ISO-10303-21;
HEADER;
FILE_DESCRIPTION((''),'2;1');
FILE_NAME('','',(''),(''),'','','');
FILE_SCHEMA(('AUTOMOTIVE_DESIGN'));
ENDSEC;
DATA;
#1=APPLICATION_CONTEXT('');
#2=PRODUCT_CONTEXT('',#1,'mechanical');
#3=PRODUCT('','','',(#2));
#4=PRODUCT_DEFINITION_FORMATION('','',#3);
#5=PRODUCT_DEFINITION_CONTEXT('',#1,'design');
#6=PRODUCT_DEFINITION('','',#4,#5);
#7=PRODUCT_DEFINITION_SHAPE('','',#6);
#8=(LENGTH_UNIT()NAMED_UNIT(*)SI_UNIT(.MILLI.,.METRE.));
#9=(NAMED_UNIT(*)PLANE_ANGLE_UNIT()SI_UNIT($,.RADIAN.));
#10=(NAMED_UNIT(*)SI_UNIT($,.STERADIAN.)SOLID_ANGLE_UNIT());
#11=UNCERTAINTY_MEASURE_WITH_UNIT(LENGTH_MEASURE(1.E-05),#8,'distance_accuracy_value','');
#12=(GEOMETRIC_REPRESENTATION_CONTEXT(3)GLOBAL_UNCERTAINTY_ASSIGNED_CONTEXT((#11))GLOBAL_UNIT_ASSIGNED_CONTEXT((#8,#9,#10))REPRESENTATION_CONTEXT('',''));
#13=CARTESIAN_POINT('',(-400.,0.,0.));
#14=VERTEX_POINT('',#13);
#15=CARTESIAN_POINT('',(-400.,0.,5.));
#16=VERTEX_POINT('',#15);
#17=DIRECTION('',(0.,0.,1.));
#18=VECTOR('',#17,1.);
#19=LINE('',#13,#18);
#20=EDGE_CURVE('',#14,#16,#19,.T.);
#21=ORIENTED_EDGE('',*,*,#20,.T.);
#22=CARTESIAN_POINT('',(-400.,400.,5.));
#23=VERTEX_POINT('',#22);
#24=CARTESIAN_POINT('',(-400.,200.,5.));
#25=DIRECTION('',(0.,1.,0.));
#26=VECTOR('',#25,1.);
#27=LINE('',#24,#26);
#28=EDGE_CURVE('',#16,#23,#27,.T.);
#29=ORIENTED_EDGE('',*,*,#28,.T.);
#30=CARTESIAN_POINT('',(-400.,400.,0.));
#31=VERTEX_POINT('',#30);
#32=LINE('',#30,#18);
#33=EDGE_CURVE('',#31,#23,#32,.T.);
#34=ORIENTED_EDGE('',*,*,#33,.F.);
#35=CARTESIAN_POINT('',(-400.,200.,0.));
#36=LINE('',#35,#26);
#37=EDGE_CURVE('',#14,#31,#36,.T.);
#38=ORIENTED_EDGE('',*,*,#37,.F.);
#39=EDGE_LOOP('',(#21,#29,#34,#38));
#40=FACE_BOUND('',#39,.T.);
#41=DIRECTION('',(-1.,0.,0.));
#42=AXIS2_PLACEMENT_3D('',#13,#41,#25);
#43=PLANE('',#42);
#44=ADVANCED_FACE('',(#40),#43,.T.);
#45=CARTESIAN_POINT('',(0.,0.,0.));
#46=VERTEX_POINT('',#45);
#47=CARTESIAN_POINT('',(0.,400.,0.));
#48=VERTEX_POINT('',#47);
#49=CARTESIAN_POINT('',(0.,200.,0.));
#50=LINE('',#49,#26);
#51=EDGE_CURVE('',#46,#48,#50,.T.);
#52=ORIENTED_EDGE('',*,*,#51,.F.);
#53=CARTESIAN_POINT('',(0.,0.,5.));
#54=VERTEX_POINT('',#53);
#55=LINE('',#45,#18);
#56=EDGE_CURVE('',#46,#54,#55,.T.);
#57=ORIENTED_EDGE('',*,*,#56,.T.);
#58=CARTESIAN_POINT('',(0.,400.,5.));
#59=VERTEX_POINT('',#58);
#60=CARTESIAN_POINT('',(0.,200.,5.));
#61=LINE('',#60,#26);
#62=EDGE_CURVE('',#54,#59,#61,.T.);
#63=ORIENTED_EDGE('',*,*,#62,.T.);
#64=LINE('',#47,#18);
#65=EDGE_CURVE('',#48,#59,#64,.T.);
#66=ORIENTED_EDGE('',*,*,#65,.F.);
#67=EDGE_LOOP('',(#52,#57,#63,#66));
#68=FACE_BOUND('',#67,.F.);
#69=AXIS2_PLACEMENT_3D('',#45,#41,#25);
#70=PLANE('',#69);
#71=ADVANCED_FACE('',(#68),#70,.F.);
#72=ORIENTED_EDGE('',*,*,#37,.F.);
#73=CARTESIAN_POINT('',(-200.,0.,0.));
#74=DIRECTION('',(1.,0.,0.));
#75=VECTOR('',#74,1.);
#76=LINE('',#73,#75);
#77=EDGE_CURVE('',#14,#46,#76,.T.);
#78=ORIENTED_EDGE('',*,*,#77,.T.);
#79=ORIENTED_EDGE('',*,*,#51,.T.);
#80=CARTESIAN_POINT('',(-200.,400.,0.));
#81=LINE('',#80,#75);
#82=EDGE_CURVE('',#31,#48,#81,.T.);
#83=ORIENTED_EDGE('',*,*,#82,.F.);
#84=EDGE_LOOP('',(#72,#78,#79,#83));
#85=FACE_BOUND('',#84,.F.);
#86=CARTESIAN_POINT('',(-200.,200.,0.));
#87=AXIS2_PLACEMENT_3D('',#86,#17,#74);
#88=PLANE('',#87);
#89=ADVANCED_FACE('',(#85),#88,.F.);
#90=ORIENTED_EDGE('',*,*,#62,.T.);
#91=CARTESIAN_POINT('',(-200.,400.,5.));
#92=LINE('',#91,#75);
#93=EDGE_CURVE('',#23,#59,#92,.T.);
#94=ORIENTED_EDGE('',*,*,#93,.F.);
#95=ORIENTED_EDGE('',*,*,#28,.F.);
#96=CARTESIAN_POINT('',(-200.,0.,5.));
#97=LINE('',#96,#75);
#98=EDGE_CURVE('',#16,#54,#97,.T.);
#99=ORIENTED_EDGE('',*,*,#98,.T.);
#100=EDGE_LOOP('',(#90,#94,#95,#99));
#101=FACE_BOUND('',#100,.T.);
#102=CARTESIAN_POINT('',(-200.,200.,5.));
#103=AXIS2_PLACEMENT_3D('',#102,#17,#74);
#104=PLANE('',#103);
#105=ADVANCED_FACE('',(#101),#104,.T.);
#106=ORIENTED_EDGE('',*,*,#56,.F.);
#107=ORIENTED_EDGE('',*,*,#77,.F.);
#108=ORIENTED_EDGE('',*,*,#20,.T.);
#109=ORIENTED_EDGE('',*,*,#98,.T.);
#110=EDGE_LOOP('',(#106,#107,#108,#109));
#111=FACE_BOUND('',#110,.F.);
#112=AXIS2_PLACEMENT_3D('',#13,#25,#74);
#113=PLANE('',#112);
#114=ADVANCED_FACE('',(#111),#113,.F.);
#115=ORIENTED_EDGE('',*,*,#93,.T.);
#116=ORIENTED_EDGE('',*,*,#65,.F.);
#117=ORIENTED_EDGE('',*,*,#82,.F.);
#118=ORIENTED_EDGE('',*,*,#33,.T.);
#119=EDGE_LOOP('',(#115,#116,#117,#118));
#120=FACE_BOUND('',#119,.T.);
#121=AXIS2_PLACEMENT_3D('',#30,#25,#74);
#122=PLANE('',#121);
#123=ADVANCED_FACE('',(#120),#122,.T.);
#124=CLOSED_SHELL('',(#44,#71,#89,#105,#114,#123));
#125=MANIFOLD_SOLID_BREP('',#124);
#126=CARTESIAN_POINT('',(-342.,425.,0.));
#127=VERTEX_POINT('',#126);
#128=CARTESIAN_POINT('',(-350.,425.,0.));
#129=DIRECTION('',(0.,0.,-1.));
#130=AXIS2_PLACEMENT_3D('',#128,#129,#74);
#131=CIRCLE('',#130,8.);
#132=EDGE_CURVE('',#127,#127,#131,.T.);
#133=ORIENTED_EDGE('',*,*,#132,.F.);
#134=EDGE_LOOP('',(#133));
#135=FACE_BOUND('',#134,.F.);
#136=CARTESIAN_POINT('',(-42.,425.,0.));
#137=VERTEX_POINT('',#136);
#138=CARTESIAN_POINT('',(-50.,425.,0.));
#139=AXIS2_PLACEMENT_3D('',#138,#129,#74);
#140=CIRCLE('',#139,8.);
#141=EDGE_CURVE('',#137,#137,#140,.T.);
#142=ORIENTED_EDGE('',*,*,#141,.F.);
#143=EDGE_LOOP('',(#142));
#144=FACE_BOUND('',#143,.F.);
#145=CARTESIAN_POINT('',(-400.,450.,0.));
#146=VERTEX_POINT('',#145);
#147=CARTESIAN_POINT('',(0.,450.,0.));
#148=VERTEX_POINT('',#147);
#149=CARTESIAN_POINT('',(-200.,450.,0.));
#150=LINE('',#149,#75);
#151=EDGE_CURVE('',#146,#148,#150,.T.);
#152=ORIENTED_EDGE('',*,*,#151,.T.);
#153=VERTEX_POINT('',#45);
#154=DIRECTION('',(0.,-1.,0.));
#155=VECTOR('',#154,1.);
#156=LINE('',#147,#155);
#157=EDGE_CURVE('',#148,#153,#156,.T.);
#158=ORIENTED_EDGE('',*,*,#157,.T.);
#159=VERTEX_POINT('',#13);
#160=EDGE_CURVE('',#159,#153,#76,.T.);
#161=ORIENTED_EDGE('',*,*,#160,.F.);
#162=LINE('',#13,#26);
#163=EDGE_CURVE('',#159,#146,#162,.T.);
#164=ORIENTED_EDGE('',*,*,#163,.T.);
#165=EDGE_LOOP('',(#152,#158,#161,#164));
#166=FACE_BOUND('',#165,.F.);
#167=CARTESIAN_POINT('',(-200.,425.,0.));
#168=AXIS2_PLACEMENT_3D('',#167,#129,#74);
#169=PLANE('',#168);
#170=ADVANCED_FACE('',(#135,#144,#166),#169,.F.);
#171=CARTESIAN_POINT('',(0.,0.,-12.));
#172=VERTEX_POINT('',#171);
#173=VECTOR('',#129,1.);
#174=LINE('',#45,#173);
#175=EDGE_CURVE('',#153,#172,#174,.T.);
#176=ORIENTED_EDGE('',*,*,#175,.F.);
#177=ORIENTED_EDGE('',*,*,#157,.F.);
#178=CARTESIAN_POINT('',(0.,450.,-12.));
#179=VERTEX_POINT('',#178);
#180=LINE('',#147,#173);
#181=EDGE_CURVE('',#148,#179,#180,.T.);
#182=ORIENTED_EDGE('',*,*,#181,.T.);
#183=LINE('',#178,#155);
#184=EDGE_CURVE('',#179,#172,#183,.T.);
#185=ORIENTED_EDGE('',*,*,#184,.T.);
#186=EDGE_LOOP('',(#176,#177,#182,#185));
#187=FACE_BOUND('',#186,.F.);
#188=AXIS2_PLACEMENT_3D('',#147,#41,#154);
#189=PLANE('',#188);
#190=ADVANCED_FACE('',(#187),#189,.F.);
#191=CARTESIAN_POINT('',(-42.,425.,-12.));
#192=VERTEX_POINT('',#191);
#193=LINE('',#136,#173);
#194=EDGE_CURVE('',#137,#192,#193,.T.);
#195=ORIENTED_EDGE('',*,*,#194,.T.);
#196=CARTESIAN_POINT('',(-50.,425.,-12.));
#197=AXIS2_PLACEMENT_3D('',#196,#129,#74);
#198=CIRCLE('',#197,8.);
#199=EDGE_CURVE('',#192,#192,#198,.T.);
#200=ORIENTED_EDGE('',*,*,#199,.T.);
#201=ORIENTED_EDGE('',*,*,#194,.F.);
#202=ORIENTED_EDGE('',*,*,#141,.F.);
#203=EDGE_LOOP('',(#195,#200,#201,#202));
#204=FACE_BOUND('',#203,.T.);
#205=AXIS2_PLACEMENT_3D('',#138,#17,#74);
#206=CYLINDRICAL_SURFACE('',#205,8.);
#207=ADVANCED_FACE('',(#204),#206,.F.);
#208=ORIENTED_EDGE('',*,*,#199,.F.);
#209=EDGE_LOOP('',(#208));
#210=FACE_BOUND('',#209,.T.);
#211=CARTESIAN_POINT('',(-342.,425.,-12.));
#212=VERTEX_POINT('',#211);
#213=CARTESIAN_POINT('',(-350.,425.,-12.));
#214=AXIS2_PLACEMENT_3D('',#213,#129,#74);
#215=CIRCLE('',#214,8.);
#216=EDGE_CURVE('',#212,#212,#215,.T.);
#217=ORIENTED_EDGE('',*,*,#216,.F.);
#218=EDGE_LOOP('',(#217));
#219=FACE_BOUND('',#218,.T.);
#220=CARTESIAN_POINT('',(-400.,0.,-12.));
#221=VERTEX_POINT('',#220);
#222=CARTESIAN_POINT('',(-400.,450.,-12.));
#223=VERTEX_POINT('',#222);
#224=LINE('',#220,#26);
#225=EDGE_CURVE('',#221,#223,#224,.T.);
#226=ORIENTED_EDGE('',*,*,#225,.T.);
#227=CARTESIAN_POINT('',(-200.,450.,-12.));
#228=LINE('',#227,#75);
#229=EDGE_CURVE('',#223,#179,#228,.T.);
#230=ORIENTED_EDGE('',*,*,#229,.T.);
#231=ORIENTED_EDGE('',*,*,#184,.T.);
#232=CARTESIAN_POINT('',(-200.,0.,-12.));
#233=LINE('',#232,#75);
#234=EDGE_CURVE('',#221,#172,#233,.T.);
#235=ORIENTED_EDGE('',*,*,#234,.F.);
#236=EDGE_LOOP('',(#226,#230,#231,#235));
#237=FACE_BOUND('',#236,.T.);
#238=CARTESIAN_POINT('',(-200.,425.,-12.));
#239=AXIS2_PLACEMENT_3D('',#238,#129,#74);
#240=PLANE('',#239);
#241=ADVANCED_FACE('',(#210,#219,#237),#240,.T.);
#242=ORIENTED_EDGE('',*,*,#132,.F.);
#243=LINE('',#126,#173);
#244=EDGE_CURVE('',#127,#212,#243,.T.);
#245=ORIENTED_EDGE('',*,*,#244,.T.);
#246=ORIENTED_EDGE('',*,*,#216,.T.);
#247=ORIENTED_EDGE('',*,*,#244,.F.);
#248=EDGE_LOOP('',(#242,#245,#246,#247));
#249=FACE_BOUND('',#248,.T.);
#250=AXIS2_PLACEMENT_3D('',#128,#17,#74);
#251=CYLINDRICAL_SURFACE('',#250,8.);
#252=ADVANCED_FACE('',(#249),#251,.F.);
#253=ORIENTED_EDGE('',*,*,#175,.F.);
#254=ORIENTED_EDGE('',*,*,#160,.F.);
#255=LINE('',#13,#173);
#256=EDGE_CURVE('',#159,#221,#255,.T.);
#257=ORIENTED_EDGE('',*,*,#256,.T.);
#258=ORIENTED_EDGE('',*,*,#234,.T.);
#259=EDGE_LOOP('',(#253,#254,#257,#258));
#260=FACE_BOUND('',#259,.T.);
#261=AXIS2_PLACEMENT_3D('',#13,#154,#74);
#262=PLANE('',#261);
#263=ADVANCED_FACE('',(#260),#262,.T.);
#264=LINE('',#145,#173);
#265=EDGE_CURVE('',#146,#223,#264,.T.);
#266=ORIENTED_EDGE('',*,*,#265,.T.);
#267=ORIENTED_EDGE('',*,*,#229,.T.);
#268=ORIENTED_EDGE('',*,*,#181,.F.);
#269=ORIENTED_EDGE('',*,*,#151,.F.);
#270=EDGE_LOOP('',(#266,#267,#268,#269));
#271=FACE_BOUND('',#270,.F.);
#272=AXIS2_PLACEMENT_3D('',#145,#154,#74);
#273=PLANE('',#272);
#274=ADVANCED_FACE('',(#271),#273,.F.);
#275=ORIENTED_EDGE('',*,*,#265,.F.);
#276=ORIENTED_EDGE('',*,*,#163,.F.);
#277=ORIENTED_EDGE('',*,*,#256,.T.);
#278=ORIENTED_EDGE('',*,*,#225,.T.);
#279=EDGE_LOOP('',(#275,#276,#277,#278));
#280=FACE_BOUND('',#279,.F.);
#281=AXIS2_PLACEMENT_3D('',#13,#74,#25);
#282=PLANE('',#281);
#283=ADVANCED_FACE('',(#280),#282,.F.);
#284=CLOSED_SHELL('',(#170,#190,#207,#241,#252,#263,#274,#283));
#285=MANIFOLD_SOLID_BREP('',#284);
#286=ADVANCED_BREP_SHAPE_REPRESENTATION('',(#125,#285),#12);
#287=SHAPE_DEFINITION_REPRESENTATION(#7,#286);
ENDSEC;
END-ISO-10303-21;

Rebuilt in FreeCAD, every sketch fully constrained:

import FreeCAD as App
import Part
import Sketcher
from FreeCAD import Vector


def add_polygon(sketch, points):
    """Adds a closed chain of lines whose ends are joined by coincident constraints."""
    first, n = sketch.GeometryCount, len(points)
    for a, b in zip(points, points[1:] + points[:1]):
        sketch.addGeometry(Part.LineSegment(App.Vector(*a, 0), App.Vector(*b, 0)), False)
    for i in range(n):
        sketch.addConstraint(Sketcher.Constraint("Coincident", first + i, 2, first + (i + 1) % n, 1))

doc = App.newDocument("Part")
body = doc.addObject("PartDesign::Body", "Body")

# Sketch on XY plane
sketch1 = body.newObject("Sketcher::SketchObject", "Sketch")
sketch1.AttachmentSupport = (doc.getObject("XY_Plane"), [""])
sketch1.MapMode = "FlatFace"
add_polygon(sketch1, [(-400, 400), (-400, 0), (0, 0), (0, 400)])  # lines 0-3
sketch1.addConstraint([
    Sketcher.Constraint("Vertical", 0),
    Sketcher.Constraint("Horizontal", 1),
    Sketcher.Constraint("Vertical", 2),
    Sketcher.Constraint("Horizontal", 3),
    Sketcher.Constraint("Coincident", 1, 2, -1, 1),
    Sketcher.Constraint("Equal", 3, 0),
    Sketcher.Constraint("DistanceX", 1, 1, 1, 2, 400.0),
])
pad1 = body.newObject("PartDesign::Pad", "Pad")
pad1.Profile = sketch1
pad1.Length = 5
body2 = doc.addObject("PartDesign::Body", "Body001")

# Sketch on XY plane
sketch2 = body2.newObject("Sketcher::SketchObject", "Sketch001")
sketch2.AttachmentSupport = (doc.getObject("XY_Plane001"), [""])
sketch2.MapMode = "FlatFace"
add_polygon(sketch2, [(-400, 450), (0, 450), (0, 0), (-400, 0)])  # lines 0-3
sketch2.addGeometry(Part.Circle(Vector(-350, 425, 0), Vector(0, 0, 1), 8), False)  # 4
sketch2.addGeometry(Part.Circle(Vector(-50, 425, 0), Vector(0, 0, 1), 8), False)  # 5
sketch2.addConstraint([
    Sketcher.Constraint("Horizontal", 0),
    Sketcher.Constraint("Vertical", 1),
    Sketcher.Constraint("Horizontal", 2),
    Sketcher.Constraint("Vertical", 3),
    Sketcher.Constraint("Coincident", 1, 2, -1, 1),
    Sketcher.Constraint("Equal", 4, 5),
    Sketcher.Constraint("Horizontal", 4, 3, 5, 3),
    Sketcher.Constraint("Diameter", 4, 16.0),
    Sketcher.Constraint("DistanceX", 0, 1, 0, 2, 400.0),
    Sketcher.Constraint("DistanceY", 1, 2, 1, 1, 450.0),
    Sketcher.Constraint("DistanceX", 4, 3, -1, 1, 350.0),
    Sketcher.Constraint("DistanceY", -1, 1, 4, 3, 425.0),
    Sketcher.Constraint("DistanceX", 5, 3, -1, 1, 50.0),
])
pad2 = body2.newObject("PartDesign::Pad", "Pad001")
pad2.Profile = sketch2
pad2.Length = 12
pad2.Reversed = True

doc.recompute()
